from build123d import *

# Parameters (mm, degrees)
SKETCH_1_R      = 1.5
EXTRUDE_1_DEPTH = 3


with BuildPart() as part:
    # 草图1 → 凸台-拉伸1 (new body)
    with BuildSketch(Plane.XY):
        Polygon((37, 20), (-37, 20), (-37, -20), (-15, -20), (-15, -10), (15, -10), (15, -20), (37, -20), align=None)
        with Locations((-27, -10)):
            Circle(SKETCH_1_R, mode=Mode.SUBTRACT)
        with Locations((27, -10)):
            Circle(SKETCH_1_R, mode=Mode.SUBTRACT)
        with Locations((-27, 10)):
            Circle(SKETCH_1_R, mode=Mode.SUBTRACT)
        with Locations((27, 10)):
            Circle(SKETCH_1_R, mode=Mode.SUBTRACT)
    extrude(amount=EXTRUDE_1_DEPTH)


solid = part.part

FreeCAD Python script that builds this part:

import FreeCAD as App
import Part
import Sketcher
from FreeCAD import Vector
Q = App.Units.Quantity

doc = App.newDocument("Part")
body = doc.addObject("PartDesign::Body", "Body")

# Sketch on XY plane
sketch1 = doc.addObject("Sketcher::SketchObject", "Sketch")
body.addObject(sketch1)
sketch1.AttachmentSupport = (doc.XY_Plane, [""])
sketch1.MapMode = "FlatFace"
sketch1.addGeometry(Part.LineSegment(Vector(37, 20, 0), Vector(-37, 20, 0)), False)
sketch1.addGeometry(Part.LineSegment(Vector(-37, 20, 0), Vector(-37, -20, 0)), False)
sketch1.addGeometry(Part.LineSegment(Vector(-37, -20, 0), Vector(-15, -20, 0)), False)
sketch1.addGeometry(Part.LineSegment(Vector(-15, -20, 0), Vector(-15, -10, 0)), False)
sketch1.addGeometry(Part.LineSegment(Vector(-15, -10, 0), Vector(15, -10, 0)), False)
sketch1.addGeometry(Part.LineSegment(Vector(15, -10, 0), Vector(15, -20, 0)), False)
sketch1.addGeometry(Part.LineSegment(Vector(15, -20, 0), Vector(37, -20, 0)), False)
sketch1.addGeometry(Part.LineSegment(Vector(37, -20, 0), Vector(37, 20, 0)), False)
sketch1.addGeometry(Part.Circle(Vector(-27, -10, 0), Vector(0, 0, 1), 1.5), False)
sketch1.addGeometry(Part.Circle(Vector(27, -10, 0), Vector(0, 0, 1), 1.5), False)
sketch1.addGeometry(Part.Circle(Vector(-27, 10, 0), Vector(0, 0, 1), 1.5), False)
sketch1.addGeometry(Part.Circle(Vector(27, 10, 0), Vector(0, 0, 1), 1.5), False)
sketch1.addConstraint(Sketcher.Constraint("Coincident", 0, 2, 1, 1))
sketch1.addConstraint(Sketcher.Constraint("Coincident", 1, 2, 2, 1))
sketch1.addConstraint(Sketcher.Constraint("Coincident", 2, 2, 3, 1))
sketch1.addConstraint(Sketcher.Constraint("Coincident", 3, 2, 4, 1))
sketch1.addConstraint(Sketcher.Constraint("Coincident", 4, 2, 5, 1))
sketch1.addConstraint(Sketcher.Constraint("Coincident", 5, 2, 6, 1))
sketch1.addConstraint(Sketcher.Constraint("Coincident", 6, 2, 7, 1))
sketch1.addConstraint(Sketcher.Constraint("Coincident", 7, 2, 0, 1))
sketch1.addConstraint(Sketcher.Constraint("Horizontal", 0))
sketch1.addConstraint(Sketcher.Constraint("Vertical", 1))
sketch1.addConstraint(Sketcher.Constraint("Horizontal", 2))
sketch1.addConstraint(Sketcher.Constraint("Vertical", 3))
sketch1.addConstraint(Sketcher.Constraint("Horizontal", 4))
sketch1.addConstraint(Sketcher.Constraint("Vertical", 5))
sketch1.addConstraint(Sketcher.Constraint("Horizontal", 6))
sketch1.addConstraint(Sketcher.Constraint("Vertical", 7))
sketch1.addConstraint(Sketcher.Constraint("Equal", 8, 9))
sketch1.addConstraint(Sketcher.Constraint("Equal", 9, 10))
sketch1.addConstraint(Sketcher.Constraint("Equal", 10, 11))
sketch1.addConstraint(Sketcher.Constraint("Symmetric", 9, 3, 10, 3, -1, 1))
sketch1.addConstraint(Sketcher.Constraint("Symmetric", 8, 3, 11, 3, -1, 1))
sketch1.addConstraint(Sketcher.Constraint("Symmetric", 0, 2, 6, 2, -1, 1))
sketch1.addConstraint(Sketcher.Constraint("Symmetric", 8, 3, 9, 3, -2))
sketch1.addConstraint(Sketcher.Constraint("Symmetric", 2, 2, 5, 2, -2))
sketch1.addConstraint(Sketcher.Constraint("Horizontal", 9, 3, 3, 2))
sketch1.addConstraint(Sketcher.Constraint("Diameter", 8, Q("3 mm")))
sketch1.addConstraint(Sketcher.Constraint("DistanceX", 0, 2, 0, 1, Q("74 mm")))
sketch1.addConstraint(Sketcher.Constraint("DistanceX", 2, 1, 2, 2, Q("22 mm")))
sketch1.addConstraint(Sketcher.Constraint("DistanceY", 1, 2, 1, 1, Q("40 mm")))
sketch1.addConstraint(Sketcher.Constraint("DistanceY", 3, 1, 3, 2, Q("10 mm")))
sketch1.addConstraint(Sketcher.Constraint("DistanceX", 8, 3, -1, 1, Q("27 mm")))
pad1 = doc.addObject("PartDesign::Pad", "Pad")
body.addObject(pad1)
pad1.Profile = sketch1
pad1.Length = 3

doc.recompute()
